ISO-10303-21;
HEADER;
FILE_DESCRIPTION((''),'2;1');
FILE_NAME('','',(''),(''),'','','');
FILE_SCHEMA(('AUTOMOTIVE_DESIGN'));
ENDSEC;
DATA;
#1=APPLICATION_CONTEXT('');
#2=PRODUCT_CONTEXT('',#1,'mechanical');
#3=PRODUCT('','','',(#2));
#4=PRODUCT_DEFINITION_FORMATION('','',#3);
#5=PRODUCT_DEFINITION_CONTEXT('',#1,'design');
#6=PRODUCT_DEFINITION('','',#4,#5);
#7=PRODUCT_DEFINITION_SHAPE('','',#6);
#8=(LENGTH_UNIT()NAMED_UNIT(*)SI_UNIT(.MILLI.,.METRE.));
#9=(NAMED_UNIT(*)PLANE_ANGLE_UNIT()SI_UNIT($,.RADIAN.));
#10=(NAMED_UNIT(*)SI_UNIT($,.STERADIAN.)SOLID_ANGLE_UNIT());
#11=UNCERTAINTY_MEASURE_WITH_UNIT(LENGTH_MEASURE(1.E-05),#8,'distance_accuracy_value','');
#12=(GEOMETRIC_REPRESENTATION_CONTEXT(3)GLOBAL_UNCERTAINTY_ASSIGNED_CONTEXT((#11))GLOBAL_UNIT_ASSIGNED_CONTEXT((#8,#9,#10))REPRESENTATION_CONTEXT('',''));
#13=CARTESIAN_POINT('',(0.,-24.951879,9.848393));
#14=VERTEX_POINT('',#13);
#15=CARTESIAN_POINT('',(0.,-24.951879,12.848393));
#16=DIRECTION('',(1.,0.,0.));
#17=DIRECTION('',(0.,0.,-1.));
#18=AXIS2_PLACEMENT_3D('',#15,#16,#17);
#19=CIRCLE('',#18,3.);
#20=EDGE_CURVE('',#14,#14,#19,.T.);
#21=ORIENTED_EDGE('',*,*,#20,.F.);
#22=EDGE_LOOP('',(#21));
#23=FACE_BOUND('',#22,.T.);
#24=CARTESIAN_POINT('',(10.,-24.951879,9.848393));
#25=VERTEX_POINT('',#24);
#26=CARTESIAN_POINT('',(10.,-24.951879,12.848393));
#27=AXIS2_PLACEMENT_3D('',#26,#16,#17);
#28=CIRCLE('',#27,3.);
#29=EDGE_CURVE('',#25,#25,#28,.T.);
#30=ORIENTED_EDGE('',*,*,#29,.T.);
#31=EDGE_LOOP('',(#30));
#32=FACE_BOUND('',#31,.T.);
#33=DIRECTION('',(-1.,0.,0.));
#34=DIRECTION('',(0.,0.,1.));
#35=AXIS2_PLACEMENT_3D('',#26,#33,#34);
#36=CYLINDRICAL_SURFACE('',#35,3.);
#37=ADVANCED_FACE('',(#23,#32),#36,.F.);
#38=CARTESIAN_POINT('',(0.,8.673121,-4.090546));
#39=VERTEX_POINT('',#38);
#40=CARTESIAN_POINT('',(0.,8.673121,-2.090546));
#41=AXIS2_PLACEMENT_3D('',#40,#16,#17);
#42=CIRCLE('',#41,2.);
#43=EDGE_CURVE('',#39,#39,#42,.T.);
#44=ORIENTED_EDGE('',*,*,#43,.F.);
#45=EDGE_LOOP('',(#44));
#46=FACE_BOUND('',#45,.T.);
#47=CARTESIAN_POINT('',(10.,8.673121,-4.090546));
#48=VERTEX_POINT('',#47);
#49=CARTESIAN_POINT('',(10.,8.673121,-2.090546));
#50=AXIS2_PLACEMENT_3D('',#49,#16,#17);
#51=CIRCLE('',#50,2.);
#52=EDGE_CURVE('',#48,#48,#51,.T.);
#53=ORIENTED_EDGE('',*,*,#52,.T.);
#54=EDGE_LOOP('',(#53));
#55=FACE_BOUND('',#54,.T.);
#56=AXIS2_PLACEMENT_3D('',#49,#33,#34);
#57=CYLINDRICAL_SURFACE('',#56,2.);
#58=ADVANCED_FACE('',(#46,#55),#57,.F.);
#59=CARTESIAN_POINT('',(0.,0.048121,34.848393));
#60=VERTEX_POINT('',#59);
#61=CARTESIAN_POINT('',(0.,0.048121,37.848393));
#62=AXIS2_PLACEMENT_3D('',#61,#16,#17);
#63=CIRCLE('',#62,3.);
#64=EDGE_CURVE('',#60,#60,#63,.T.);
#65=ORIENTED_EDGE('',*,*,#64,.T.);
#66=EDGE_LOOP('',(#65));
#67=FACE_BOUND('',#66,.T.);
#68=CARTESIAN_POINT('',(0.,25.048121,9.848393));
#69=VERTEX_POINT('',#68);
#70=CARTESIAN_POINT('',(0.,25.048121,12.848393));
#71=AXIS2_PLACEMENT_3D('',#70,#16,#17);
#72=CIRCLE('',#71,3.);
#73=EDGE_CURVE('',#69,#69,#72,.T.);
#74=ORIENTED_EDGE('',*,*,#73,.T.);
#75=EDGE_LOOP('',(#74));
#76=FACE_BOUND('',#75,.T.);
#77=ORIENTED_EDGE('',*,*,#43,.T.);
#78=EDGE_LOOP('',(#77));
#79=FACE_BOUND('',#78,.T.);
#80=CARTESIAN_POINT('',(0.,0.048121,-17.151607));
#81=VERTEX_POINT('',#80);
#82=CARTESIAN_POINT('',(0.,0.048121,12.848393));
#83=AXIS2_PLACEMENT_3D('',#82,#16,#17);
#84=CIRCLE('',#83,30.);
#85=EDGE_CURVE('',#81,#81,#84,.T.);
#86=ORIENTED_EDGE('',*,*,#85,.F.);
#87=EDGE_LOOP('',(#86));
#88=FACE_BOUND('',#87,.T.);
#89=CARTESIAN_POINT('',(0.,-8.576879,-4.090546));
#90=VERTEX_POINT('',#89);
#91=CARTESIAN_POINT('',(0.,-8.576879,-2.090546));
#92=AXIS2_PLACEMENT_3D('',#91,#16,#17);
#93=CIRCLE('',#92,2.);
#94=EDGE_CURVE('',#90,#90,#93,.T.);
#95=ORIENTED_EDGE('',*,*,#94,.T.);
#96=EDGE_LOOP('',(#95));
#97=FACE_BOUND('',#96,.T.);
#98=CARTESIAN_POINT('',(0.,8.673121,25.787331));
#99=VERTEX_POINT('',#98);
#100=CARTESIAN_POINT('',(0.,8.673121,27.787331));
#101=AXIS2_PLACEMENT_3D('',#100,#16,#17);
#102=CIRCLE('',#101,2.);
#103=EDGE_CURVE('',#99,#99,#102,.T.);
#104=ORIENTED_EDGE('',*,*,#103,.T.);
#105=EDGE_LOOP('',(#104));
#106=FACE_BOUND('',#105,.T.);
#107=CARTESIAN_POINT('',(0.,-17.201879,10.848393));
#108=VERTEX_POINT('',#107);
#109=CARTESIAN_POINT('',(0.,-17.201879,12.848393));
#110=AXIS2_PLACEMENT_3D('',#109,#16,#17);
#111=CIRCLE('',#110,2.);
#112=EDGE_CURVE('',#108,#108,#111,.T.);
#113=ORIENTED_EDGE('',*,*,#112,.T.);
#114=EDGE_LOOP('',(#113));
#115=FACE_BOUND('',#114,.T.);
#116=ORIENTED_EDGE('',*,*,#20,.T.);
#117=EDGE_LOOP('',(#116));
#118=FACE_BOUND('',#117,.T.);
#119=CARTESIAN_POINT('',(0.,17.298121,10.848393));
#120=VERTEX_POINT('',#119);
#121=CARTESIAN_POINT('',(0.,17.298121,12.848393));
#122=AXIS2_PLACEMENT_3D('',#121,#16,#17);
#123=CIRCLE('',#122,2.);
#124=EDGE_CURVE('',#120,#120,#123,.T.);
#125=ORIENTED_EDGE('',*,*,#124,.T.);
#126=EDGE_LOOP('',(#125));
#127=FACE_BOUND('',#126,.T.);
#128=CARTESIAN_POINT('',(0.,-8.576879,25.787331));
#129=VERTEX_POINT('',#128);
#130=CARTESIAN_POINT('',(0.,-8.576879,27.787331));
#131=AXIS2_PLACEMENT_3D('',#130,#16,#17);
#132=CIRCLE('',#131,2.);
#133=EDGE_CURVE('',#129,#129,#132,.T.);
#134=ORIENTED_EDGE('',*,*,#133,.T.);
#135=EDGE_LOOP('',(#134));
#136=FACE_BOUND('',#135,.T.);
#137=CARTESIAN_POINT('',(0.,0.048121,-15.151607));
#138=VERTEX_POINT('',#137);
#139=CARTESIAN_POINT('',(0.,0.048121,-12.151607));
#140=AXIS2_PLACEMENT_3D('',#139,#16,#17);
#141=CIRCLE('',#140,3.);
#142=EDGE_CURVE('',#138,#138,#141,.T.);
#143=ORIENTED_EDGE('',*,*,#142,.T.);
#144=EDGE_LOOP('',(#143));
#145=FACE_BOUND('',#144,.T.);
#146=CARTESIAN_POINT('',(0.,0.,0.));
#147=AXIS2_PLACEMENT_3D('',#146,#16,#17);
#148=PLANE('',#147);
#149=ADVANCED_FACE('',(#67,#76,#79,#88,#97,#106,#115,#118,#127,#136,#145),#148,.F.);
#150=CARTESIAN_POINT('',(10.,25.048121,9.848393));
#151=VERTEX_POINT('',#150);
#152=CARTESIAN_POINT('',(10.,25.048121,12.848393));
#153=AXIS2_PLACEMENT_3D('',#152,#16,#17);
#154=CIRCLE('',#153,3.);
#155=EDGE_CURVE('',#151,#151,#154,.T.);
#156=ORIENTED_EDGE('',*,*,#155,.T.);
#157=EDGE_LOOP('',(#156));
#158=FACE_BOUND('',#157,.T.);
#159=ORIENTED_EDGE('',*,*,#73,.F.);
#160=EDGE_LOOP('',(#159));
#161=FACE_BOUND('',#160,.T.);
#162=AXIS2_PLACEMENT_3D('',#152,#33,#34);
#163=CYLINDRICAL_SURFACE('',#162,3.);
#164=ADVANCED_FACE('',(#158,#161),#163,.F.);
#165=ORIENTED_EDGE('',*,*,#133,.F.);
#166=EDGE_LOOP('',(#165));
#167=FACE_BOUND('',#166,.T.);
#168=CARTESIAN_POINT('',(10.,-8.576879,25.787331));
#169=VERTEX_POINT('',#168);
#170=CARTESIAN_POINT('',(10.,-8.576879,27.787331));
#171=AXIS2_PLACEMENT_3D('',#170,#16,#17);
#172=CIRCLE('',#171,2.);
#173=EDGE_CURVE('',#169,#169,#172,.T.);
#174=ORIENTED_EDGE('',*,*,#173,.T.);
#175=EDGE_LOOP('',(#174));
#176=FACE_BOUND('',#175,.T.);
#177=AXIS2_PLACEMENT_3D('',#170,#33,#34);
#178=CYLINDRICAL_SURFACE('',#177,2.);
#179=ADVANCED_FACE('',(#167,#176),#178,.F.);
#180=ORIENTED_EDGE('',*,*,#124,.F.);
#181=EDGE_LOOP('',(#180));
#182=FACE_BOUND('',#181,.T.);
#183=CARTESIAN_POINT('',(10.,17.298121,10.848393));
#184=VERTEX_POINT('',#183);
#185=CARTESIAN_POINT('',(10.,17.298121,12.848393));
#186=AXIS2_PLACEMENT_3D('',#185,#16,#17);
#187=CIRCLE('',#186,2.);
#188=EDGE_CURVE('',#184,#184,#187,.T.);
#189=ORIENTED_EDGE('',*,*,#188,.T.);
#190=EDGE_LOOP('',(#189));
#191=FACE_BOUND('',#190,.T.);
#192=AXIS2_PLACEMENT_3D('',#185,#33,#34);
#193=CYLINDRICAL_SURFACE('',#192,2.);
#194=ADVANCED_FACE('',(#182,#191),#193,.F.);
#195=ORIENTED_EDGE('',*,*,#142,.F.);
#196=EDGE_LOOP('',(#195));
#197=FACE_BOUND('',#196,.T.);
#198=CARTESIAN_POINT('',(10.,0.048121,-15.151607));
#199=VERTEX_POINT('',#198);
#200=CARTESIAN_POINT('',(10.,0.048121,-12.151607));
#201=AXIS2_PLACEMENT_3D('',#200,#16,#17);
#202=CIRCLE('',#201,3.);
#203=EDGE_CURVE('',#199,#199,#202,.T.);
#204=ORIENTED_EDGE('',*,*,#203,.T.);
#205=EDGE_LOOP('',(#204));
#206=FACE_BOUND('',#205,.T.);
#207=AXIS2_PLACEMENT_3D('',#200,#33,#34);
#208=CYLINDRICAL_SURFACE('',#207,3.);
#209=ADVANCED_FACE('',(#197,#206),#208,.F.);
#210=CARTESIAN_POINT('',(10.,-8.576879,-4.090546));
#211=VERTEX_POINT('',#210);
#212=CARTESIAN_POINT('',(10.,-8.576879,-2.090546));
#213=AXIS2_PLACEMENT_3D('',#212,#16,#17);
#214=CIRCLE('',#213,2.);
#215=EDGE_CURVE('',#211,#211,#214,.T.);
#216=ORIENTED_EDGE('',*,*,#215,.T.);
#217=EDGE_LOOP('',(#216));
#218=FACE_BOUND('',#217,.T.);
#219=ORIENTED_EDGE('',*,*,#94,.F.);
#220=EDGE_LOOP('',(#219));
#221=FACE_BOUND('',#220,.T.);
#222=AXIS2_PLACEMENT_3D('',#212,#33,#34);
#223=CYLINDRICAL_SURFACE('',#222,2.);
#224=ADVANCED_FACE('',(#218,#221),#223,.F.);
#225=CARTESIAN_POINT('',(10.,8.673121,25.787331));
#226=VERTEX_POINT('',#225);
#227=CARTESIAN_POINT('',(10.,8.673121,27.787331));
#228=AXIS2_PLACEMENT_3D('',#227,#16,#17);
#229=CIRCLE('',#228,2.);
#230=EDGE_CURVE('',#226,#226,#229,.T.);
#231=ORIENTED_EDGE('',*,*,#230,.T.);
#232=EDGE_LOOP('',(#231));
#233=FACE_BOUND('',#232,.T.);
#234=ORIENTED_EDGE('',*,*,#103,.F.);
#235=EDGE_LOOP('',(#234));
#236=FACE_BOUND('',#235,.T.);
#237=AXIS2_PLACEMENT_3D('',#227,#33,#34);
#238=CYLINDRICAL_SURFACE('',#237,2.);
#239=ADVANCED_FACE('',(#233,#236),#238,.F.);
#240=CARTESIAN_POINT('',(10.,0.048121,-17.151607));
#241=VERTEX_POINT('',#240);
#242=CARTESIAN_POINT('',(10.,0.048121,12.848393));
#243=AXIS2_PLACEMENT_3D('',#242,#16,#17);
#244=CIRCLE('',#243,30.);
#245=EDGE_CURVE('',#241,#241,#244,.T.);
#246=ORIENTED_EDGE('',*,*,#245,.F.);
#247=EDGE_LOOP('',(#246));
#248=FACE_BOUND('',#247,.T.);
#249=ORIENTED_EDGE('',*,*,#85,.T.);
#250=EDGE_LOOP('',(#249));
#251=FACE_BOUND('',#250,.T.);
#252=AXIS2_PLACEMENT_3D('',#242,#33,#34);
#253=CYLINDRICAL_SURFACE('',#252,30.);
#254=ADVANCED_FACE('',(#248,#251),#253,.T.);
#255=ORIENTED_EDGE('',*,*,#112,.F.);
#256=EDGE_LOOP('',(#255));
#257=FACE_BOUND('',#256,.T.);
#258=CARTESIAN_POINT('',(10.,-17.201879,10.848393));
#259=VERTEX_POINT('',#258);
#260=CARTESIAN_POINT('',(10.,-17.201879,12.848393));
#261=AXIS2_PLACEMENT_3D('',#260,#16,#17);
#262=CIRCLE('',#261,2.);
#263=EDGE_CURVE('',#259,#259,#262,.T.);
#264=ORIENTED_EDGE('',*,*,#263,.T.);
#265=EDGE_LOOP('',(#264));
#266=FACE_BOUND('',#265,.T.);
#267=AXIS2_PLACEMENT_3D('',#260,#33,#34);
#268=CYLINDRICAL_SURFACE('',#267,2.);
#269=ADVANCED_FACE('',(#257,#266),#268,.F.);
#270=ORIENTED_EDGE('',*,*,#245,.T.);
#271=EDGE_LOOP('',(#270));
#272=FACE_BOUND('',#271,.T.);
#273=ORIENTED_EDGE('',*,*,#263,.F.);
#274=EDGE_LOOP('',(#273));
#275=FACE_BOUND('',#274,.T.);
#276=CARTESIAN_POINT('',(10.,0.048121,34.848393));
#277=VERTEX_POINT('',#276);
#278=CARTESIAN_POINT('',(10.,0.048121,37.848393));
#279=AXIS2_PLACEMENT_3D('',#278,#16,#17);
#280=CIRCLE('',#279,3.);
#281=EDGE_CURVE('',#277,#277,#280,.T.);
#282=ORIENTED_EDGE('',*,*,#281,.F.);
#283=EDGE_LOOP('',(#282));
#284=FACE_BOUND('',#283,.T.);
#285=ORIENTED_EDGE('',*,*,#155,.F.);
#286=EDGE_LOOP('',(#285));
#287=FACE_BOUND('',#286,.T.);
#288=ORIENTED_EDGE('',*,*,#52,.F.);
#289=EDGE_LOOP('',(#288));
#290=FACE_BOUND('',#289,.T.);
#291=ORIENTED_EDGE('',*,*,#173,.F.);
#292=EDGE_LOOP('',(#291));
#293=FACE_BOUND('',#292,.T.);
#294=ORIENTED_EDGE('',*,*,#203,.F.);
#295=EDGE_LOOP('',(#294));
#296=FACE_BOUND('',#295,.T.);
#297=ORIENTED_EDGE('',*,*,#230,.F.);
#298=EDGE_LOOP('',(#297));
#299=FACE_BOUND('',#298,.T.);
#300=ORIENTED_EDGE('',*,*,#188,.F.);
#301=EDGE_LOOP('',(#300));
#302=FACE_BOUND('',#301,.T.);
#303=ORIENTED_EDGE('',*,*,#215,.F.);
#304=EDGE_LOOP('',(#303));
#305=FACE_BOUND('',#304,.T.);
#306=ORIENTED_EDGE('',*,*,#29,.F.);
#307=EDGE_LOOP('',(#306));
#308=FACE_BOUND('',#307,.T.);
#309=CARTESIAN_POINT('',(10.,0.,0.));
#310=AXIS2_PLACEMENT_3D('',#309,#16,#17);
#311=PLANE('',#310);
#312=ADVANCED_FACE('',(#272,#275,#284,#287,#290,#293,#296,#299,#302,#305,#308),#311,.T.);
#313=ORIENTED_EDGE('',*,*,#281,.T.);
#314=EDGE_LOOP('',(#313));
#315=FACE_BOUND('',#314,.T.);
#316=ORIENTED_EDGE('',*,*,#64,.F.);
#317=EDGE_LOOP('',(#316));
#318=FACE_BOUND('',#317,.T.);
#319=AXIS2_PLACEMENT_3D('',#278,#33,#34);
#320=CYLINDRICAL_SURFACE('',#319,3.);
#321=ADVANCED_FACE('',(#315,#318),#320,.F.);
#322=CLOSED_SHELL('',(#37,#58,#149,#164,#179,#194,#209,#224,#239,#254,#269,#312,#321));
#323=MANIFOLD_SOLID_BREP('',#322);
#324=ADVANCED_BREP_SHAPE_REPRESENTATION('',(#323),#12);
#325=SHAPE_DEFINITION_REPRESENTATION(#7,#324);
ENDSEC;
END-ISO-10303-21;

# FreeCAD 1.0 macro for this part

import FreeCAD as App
import Part
import Sketcher

V = App.Vector
Q = App.Units.Quantity

doc = App.newDocument("Part")
body = doc.addObject("PartDesign::Body", "Body")

sketch1 = doc.addObject("Sketcher::SketchObject", "Sketch")
body.addObject(sketch1)
sketch1.AttachmentSupport = (doc.YZ_Plane, [""])
sketch1.MapMode = "FlatFace"
sketch1.addGeometry(Part.Circle(V(0, 12.8, 0), V(0, 0, 1), 30), False)
sketch1.addGeometry(Part.Circle(V(-8.6, 27.8, 0), V(0, 0, 1), 2), False)
sketch1.addGeometry(Part.Circle(V(-25, 12.8, 0), V(0, 0, 1), 3), False)
sketch1.addGeometry(Part.Circle(V(-17.2, 12.8, 0), V(0, 0, 1), 2), False)
sketch1.addGeometry(Part.Circle(V(-8.6, -2.1, 0), V(0, 0, 1), 2), False)
sketch1.addGeometry(Part.Circle(V(0, 37.8, 0), V(0, 0, 1), 3), False)
sketch1.addGeometry(Part.Circle(V(8.7, 27.8, 0), V(0, 0, 1), 2), False)
sketch1.addGeometry(Part.Circle(V(0, -12.2, 0), V(0, 0, 1), 3), False)
sketch1.addGeometry(Part.Circle(V(8.7, -2.1, 0), V(0, 0, 1), 2), False)
sketch1.addGeometry(Part.Circle(V(17.3, 12.8, 0), V(0, 0, 1), 2), False)
sketch1.addGeometry(Part.Circle(V(25, 12.8, 0), V(0, 0, 1), 3), False)
sketch1.addConstraint(Sketcher.Constraint("Equal", 1, 3))
sketch1.addConstraint(Sketcher.Constraint("Equal", 3, 4))
sketch1.addConstraint(Sketcher.Constraint("Equal", 2, 5))
sketch1.addConstraint(Sketcher.Constraint("Equal", 4, 6))
sketch1.addConstraint(Sketcher.Constraint("Equal", 5, 7))
sketch1.addConstraint(Sketcher.Constraint("Equal", 6, 8))
sketch1.addConstraint(Sketcher.Constraint("Equal", 8, 9))
sketch1.addConstraint(Sketcher.Constraint("Equal", 7, 10))
sketch1.addConstraint(Sketcher.Constraint("Horizontal", 0, 3, 2, 3))
sketch1.addConstraint(Sketcher.Constraint("Horizontal", 2, 3, 3, 3))
sketch1.addConstraint(Sketcher.Constraint("Horizontal", 1, 3, 6, 3))
sketch1.addConstraint(Sketcher.Constraint("Horizontal", 4, 3, 8, 3))
sketch1.addConstraint(Sketcher.Constraint("Horizontal", 3, 3, 9, 3))
sketch1.addConstraint(Sketcher.Constraint("Horizontal", 9, 3, 10, 3))
sketch1.addConstraint(Sketcher.Constraint("Vertical", 1, 3, 4, 3))
sketch1.addConstraint(Sketcher.Constraint("Vertical", 0, 3, 5, 3))
sketch1.addConstraint(Sketcher.Constraint("Vertical", 5, 3, 7, 3))
sketch1.addConstraint(Sketcher.Constraint("Vertical", 6, 3, 8, 3))
sketch1.addConstraint(Sketcher.Constraint("Diameter", 0, Q("60 mm")))
sketch1.addConstraint(Sketcher.Constraint("Diameter", 1, Q("4 mm")))
sketch1.addConstraint(Sketcher.Constraint("Diameter", 2, Q("6 mm")))
sketch1.addConstraint(Sketcher.Constraint("DistanceX", 2, 3, 0, 3, Q("25 mm")))
sketch1.addConstraint(Sketcher.Constraint("DistanceY", 0, 3, 5, 3, Q("25 mm")))
sketch1.addConstraint(Sketcher.Constraint("DistanceY", 7, 3, 0, 3, Q("25 mm")))
sketch1.addConstraint(Sketcher.Constraint("DistanceX", 0, 3, 10, 3, Q("25 mm")))
sketch1.addConstraint(Sketcher.Constraint("DistanceX", 2, 3, 3, 3, Q("7.75 mm")))
sketch1.addConstraint(Sketcher.Constraint("DistanceX", 1, 3, 6, 3, Q("17.25 mm")))
sketch1.addConstraint(Sketcher.Constraint("DistanceX", 0, 3, 9, 3, Q("17.25 mm")))
sketch1.addConstraint(Sketcher.Constraint("DistanceX", 1, 3, 0, 3, Q("8.625 mm")))
sketch1.addConstraint(Sketcher.Constraint("DistanceX", -1, 1, 0, 3, Q("0.048121 mm")))
sketch1.addConstraint(Sketcher.Constraint("DistanceY", -1, 1, 1, 3, Q("27.787331 mm")))
sketch1.addConstraint(Sketcher.Constraint("DistanceY", 0, 3, 1, 3, Q("14.938938 mm")))
sketch1.addConstraint(Sketcher.Constraint("DistanceY", 4, 3, 0, 3, Q("14.938938 mm")))
pad1 = doc.addObject("PartDesign::Pad", "Pad")
body.addObject(pad1)
pad1.Profile = sketch1
pad1.Length = 10

doc.recompute()
